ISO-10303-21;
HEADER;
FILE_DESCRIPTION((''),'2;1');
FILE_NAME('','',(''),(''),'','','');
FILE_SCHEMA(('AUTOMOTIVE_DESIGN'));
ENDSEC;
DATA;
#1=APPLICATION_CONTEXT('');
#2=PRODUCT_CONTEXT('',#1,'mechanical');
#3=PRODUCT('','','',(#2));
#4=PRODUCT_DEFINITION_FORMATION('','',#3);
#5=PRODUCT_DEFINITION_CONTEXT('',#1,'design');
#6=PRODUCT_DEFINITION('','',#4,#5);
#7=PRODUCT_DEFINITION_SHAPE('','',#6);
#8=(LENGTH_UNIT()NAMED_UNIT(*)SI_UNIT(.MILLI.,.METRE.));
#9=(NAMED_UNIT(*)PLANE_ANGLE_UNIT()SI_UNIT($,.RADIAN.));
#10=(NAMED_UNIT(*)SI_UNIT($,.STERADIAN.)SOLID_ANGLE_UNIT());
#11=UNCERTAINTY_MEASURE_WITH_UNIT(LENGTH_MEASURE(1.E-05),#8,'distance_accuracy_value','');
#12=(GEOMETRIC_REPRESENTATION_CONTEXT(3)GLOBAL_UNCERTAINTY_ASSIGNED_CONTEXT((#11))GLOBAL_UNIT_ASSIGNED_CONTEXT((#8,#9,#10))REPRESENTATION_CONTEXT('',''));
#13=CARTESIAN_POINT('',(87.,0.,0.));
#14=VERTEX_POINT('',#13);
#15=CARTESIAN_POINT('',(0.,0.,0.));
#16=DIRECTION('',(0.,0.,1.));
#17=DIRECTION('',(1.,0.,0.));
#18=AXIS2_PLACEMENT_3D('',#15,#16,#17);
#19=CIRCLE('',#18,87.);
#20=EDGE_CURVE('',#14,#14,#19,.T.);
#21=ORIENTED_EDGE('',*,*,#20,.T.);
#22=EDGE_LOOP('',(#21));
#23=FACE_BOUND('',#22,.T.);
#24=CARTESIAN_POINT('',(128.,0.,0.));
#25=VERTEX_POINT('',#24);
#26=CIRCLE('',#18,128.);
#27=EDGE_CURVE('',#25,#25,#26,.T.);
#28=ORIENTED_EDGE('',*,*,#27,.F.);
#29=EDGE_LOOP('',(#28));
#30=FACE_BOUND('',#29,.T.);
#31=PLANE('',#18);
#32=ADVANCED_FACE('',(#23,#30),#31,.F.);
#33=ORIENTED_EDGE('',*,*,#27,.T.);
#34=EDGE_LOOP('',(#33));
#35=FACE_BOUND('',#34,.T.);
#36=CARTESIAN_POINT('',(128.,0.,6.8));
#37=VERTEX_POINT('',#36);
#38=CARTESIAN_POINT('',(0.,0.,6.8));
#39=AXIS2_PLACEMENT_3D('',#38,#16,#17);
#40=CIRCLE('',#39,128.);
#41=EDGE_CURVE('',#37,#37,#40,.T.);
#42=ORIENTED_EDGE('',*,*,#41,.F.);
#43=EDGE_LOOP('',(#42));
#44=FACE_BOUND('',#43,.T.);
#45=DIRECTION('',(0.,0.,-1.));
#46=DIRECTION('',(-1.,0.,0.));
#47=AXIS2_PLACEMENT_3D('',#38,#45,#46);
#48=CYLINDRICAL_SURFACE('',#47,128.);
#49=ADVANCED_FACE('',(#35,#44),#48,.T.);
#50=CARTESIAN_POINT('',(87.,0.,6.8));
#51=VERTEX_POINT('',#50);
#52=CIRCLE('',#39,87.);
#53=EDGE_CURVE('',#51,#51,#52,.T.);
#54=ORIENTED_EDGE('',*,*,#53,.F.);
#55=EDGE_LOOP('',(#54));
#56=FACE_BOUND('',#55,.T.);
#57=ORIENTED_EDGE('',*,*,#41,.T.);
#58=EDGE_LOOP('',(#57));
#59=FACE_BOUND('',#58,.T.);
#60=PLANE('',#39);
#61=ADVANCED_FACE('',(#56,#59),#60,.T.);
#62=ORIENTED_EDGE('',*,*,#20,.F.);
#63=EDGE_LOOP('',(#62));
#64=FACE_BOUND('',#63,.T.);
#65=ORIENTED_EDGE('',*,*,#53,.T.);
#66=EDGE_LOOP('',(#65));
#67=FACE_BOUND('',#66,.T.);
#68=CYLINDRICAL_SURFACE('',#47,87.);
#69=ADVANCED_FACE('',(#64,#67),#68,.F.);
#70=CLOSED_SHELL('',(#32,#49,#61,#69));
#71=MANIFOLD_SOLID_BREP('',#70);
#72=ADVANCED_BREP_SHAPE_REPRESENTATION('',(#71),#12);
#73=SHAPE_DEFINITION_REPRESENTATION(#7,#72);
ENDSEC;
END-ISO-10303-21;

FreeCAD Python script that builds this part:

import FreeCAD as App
import Part
import Sketcher

doc = App.newDocument("Part")
body = doc.addObject("PartDesign::Body", "Body")

# Sketch on XY plane
sketch1 = body.newObject("Sketcher::SketchObject", "Sketch")
sketch1.AttachmentSupport = (doc.getObject("XY_Plane"), [""])
sketch1.MapMode = "FlatFace"
sketch1.addGeometry([
    Part.Circle(App.Vector(0, 0, 0), App.Vector(0, 0, 1), 128),
    Part.Circle(App.Vector(0, 0, 0), App.Vector(0, 0, 1), 87),
], False)
sketch1.addConstraint([
    Sketcher.Constraint("Coincident", 0, 3, -1, 1),
    Sketcher.Constraint("Coincident", 1, 3, -1, 1),
    Sketcher.Constraint("Diameter", 0, 256.0),
    Sketcher.Constraint("Diameter", 1, 174.0),
])
pad1 = body.newObject("PartDesign::Pad", "Pad")
pad1.Profile = sketch1
pad1.Length = 6.8

doc.recompute()
